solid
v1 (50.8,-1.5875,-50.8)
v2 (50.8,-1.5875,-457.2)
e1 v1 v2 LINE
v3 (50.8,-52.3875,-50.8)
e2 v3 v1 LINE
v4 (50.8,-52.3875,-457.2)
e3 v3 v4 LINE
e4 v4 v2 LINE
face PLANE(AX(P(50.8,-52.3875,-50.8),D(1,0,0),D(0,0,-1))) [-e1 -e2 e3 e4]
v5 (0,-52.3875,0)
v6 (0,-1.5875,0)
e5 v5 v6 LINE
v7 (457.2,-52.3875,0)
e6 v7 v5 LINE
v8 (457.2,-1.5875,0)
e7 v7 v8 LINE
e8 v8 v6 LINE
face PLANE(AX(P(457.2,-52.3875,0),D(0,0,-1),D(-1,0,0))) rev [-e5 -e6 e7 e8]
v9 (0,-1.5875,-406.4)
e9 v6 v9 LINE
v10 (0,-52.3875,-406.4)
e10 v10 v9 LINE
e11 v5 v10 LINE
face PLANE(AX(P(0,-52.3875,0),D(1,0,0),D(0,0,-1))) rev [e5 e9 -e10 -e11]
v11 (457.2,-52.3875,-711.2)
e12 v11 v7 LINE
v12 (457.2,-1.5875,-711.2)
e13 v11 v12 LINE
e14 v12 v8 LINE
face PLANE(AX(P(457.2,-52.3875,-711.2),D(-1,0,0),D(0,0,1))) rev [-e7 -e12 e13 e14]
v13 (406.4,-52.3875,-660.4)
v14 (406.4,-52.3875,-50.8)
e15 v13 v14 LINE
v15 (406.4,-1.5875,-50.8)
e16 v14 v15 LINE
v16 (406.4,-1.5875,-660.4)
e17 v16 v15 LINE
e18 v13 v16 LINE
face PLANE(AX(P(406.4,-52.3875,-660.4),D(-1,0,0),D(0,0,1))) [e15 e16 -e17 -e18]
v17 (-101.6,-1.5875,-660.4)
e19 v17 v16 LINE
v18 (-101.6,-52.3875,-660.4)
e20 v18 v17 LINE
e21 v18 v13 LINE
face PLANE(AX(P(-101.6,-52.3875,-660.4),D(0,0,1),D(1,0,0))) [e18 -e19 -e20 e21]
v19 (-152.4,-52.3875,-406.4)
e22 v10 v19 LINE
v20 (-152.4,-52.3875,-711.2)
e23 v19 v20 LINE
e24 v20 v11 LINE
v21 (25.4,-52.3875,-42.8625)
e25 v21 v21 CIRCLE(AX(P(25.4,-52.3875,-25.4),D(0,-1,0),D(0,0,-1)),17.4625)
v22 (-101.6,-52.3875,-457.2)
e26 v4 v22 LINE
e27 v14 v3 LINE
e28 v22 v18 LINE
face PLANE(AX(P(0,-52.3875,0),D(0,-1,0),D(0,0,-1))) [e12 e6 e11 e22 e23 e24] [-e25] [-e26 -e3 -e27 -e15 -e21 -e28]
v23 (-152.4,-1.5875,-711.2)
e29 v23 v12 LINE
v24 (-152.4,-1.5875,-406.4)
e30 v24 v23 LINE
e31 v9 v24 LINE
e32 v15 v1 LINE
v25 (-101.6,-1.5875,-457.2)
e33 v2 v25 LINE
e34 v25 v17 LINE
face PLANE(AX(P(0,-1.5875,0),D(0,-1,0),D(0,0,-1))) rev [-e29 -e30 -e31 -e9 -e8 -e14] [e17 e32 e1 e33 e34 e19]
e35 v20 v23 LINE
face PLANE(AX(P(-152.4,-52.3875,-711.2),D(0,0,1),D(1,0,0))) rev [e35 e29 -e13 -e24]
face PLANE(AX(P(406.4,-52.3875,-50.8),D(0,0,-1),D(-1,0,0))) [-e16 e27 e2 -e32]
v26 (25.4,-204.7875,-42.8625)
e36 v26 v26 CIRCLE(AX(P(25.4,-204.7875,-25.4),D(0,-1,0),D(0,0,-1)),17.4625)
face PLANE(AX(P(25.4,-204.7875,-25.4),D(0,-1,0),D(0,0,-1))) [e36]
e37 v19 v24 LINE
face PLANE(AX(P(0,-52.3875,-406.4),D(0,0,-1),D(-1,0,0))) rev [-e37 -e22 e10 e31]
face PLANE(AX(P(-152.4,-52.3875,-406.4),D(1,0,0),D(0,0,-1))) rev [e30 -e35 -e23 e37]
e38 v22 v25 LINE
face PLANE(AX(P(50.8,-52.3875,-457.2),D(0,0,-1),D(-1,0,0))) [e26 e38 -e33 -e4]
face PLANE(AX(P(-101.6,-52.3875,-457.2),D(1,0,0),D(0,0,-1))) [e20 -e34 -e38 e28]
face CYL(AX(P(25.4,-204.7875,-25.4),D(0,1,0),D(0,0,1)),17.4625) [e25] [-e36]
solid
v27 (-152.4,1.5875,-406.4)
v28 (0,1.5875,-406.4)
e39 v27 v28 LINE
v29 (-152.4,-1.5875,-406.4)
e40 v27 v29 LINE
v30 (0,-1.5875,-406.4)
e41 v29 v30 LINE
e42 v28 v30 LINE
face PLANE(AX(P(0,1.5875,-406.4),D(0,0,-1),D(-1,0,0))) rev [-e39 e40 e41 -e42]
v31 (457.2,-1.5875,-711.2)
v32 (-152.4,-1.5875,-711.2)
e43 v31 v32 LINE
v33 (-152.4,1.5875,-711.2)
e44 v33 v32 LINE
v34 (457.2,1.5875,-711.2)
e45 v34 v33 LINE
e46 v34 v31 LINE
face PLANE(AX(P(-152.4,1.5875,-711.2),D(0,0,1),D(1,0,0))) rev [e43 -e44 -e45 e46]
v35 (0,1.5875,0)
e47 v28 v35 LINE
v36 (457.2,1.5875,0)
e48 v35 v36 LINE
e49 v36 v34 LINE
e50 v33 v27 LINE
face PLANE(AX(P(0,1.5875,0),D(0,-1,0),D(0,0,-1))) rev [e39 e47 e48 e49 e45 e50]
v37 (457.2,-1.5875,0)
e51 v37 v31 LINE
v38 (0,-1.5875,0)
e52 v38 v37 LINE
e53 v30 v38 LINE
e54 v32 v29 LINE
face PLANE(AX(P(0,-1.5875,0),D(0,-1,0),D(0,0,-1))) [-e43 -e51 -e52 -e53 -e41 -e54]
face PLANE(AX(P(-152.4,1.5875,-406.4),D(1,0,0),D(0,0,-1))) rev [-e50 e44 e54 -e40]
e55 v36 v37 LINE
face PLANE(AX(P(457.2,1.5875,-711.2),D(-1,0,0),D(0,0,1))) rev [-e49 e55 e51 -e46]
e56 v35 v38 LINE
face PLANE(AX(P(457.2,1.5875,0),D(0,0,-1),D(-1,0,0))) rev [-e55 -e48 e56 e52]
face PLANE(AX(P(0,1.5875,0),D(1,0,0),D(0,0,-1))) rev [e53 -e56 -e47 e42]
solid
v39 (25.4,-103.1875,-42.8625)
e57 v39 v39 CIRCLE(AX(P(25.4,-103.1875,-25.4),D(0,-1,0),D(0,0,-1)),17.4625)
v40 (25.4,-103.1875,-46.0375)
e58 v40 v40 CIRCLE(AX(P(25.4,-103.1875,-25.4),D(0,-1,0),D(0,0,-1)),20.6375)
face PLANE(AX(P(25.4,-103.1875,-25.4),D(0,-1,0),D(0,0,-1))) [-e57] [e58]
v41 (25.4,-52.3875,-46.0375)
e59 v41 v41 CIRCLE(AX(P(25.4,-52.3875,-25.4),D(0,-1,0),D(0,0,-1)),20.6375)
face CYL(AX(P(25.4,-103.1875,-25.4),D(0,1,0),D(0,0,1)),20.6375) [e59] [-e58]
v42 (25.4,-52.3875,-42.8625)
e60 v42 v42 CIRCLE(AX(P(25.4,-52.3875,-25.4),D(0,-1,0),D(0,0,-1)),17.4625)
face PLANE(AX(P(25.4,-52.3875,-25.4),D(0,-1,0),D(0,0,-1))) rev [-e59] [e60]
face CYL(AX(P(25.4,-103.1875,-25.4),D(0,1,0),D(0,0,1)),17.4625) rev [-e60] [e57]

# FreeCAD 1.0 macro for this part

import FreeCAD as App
import Part
import Sketcher
Q = App.Units.Quantity

doc = App.newDocument("Part")
params = doc.addObject("Spreadsheet::Sheet", "Params")
for row, (alias, value) in enumerate([
    ("sketch1_width", "18 in"),
    ("sketch1_width2", "24 in"),
    ("sketch1_height", "16 in"),
    ("sketch1_height2", "28 in"),
    ("pad1_length", "0.125 in"),
    ("sketch2_width", "18 in"),
    ("sketch2_width2", "6 in"),
    ("sketch2_width3", "14 in"),
    ("sketch2_height", "16 in"),
    ("sketch2_height2", "12 in"),
    ("pad2_length", "2 in"),
    ("sketch3_diameter", "1.375 in"),
    ("pad3_length", "6 in"),
    ("sketch4_diameter", "1.625 in"),
    ("sketch4_diameter2", "1.375 in"),
    ("pad4_length", "2 in"),
], start=1):
    params.set(f"A{row}", alias)
    params.set(f"B{row}", "=" + value)
    params.setAlias(f"B{row}", alias)

body = doc.addObject("PartDesign::Body", "Body")

sketch1 = body.newObject("Sketcher::SketchObject", "Sketch")
sketch1.AttachmentSupport = (doc.getObject("XZ_Plane"), [""])
sketch1.MapMode = "FlatFace"
sketch1.addGeometry([
    Part.LineSegment(App.Vector(0, -406, 0), App.Vector(0, 0, 0)),
    Part.LineSegment(App.Vector(0, 0, 0), App.Vector(457, 0, 0)),
    Part.LineSegment(App.Vector(457, 0, 0), App.Vector(457, -711, 0)),
    Part.LineSegment(App.Vector(457, -711, 0), App.Vector(-152, -711, 0)),
    Part.LineSegment(App.Vector(-152, -711, 0), App.Vector(-152, -406, 0)),
    Part.LineSegment(App.Vector(-152, -406, 0), App.Vector(0, -406, 0)),
], False)
sketch1.addConstraint([
    Sketcher.Constraint("Coincident", 0, 2, 1, 1),
    Sketcher.Constraint("Coincident", 1, 2, 2, 1),
    Sketcher.Constraint("Coincident", 2, 2, 3, 1),
    Sketcher.Constraint("Coincident", 3, 2, 4, 1),
    Sketcher.Constraint("Coincident", 4, 2, 5, 1),
    Sketcher.Constraint("Coincident", 5, 2, 0, 1),
    Sketcher.Constraint("Vertical", 0),
    Sketcher.Constraint("Horizontal", 1),
    Sketcher.Constraint("Vertical", 2),
    Sketcher.Constraint("Horizontal", 3),
    Sketcher.Constraint("Vertical", 4),
    Sketcher.Constraint("Horizontal", 5),
    Sketcher.Constraint("Coincident", 0, 2, -1, 1),
    Sketcher.Constraint("DistanceX", 1, 1, 1, 2, Q("18 in")),
    Sketcher.Constraint("DistanceX", 3, 2, 3, 1, Q("24 in")),
    Sketcher.Constraint("DistanceY", 0, 1, 0, 2, Q("16 in")),
    Sketcher.Constraint("DistanceY", 2, 2, 2, 1, Q("28 in")),
])
sketch1.setExpression("Constraints[13]", "Params.sketch1_width")
sketch1.setExpression("Constraints[14]", "Params.sketch1_width2")
sketch1.setExpression("Constraints[15]", "Params.sketch1_height")
sketch1.setExpression("Constraints[16]", "Params.sketch1_height2")
pad1 = body.newObject("PartDesign::Pad", "Pad")
pad1.Profile = sketch1
pad1.setExpression("Length", "Params.pad1_length")
pad1.Midplane = True
body2 = doc.addObject("PartDesign::Body", "Body001")

sketch2 = body2.newObject("Sketcher::SketchObject", "Sketch001")
sketch2.AttachmentSupport = (doc.getObject("XZ_Plane001"), [""])
sketch2.MapMode = "FlatFace"
sketch2.AttachmentOffset = App.Placement(App.Vector(0, 0, 0.0625 * 25.4), App.Rotation())
sketch2.addGeometry([
    Part.LineSegment(App.Vector(457, 0, 0), App.Vector(0, 0, 0)),
    Part.LineSegment(App.Vector(0, 0, 0), App.Vector(0, -406, 0)),
    Part.LineSegment(App.Vector(0, -406, 0), App.Vector(-152, -406, 0)),
    Part.LineSegment(App.Vector(-152, -406, 0), App.Vector(-152, -711, 0)),
    Part.LineSegment(App.Vector(-152, -711, 0), App.Vector(457, -711, 0)),
    Part.LineSegment(App.Vector(457, -711, 0), App.Vector(457, 0, 0)),
    Part.LineSegment(App.Vector(51, -51, 0), App.Vector(406, -51, 0)),
    Part.LineSegment(App.Vector(406, -51, 0), App.Vector(406, -660, 0)),
    Part.LineSegment(App.Vector(406, -660, 0), App.Vector(-102, -660, 0)),
    Part.LineSegment(App.Vector(-102, -660, 0), App.Vector(-102, -457, 0)),
    Part.LineSegment(App.Vector(-102, -457, 0), App.Vector(51, -457, 0)),
    Part.LineSegment(App.Vector(51, -457, 0), App.Vector(51, -51, 0)),
], False)
sketch2.addConstraint([
    Sketcher.Constraint("Coincident", 0, 2, 1, 1),
    Sketcher.Constraint("Coincident", 1, 2, 2, 1),
    Sketcher.Constraint("Coincident", 2, 2, 3, 1),
    Sketcher.Constraint("Coincident", 3, 2, 4, 1),
    Sketcher.Constraint("Coincident", 4, 2, 5, 1),
    Sketcher.Constraint("Coincident", 5, 2, 0, 1),
    Sketcher.Constraint("Coincident", 6, 2, 7, 1),
    Sketcher.Constraint("Coincident", 7, 2, 8, 1),
    Sketcher.Constraint("Coincident", 8, 2, 9, 1),
    Sketcher.Constraint("Coincident", 9, 2, 10, 1),
    Sketcher.Constraint("Coincident", 10, 2, 11, 1),
    Sketcher.Constraint("Coincident", 11, 2, 6, 1),
    Sketcher.Constraint("Horizontal", 0),
    Sketcher.Constraint("Vertical", 1),
    Sketcher.Constraint("Horizontal", 2),
    Sketcher.Constraint("Vertical", 3),
    Sketcher.Constraint("Horizontal", 4),
    Sketcher.Constraint("Vertical", 5),
    Sketcher.Constraint("Horizontal", 6),
    Sketcher.Constraint("Vertical", 7),
    Sketcher.Constraint("Horizontal", 8),
    Sketcher.Constraint("Vertical", 9),
    Sketcher.Constraint("Horizontal", 10),
    Sketcher.Constraint("Vertical", 11),
    Sketcher.Constraint("Coincident", 0, 2, -1, 1),
    Sketcher.Constraint("Equal", 2, 10),
    Sketcher.Constraint("Equal", 4, 7),
    Sketcher.Constraint("Equal", 1, 11),
    Sketcher.Constraint("DistanceX", 0, 2, 0, 1, Q("18 in")),
    Sketcher.Constraint("DistanceX", 2, 2, 2, 1, Q("6 in")),
    Sketcher.Constraint("DistanceX", 6, 1, 6, 2, Q("14 in")),
    Sketcher.Constraint("DistanceY", 1, 2, 1, 1, Q("16 in")),
    Sketcher.Constraint("DistanceY", 3, 2, 3, 1, Q("12 in")),
    Sketcher.Constraint("DistanceX", -1, 1, 6, 2, Q("16 in")),
    Sketcher.Constraint("DistanceY", 6, 2, -1, 1, Q("2 in")),
])
sketch2.setExpression("Constraints[28]", "Params.sketch2_width")
sketch2.setExpression("Constraints[29]", "Params.sketch2_width2")
sketch2.setExpression("Constraints[30]", "Params.sketch2_width3")
sketch2.setExpression("Constraints[31]", "Params.sketch2_height")
sketch2.setExpression("Constraints[32]", "Params.sketch2_height2")
pad2 = body2.newObject("PartDesign::Pad", "Pad001")
pad2.Profile = sketch2
pad2.setExpression("Length", "Params.pad2_length")

sketch3 = body2.newObject("Sketcher::SketchObject", "Sketch002")
sketch3.AttachmentSupport = (doc.getObject("XZ_Plane001"), [""])
sketch3.MapMode = "FlatFace"
sketch3.AttachmentOffset = App.Placement(App.Vector(0, 0, 2.0625 * 25.4), App.Rotation())
sketch3.addGeometry(Part.Circle(App.Vector(25, -25, 0), App.Vector(0, 0, 1), 17), False)
sketch3.addConstraint([
    Sketcher.Constraint("Diameter", 0, Q("1.375 in")),
    Sketcher.Constraint("DistanceX", -1, 1, 0, 3, Q("1 in")),
    Sketcher.Constraint("DistanceY", 0, 3, -1, 1, Q("1 in")),
])
sketch3.setExpression("Constraints[0]", "Params.sketch3_diameter")
pad3 = body2.newObject("PartDesign::Pad", "Pad002")
pad3.Profile = sketch3
pad3.setExpression("Length", "Params.pad3_length")
body3 = doc.addObject("PartDesign::Body", "Body002")

sketch4 = body3.newObject("Sketcher::SketchObject", "Sketch003")
sketch4.AttachmentSupport = (doc.getObject("XZ_Plane002"), [""])
sketch4.MapMode = "FlatFace"
sketch4.AttachmentOffset = App.Placement(App.Vector(0, 0, 2.0625 * 25.4), App.Rotation())
sketch4.addGeometry([
    Part.Circle(App.Vector(25, -25, 0), App.Vector(0, 0, 1), 21),
    Part.Circle(App.Vector(25, -25, 0), App.Vector(0, 0, 1), 17),
], False)
sketch4.addConstraint([
    Sketcher.Constraint("Coincident", 1, 3, 0, 3),
    Sketcher.Constraint("Diameter", 0, Q("1.625 in")),
    Sketcher.Constraint("Diameter", 1, Q("1.375 in")),
    Sketcher.Constraint("DistanceX", -1, 1, 0, 3, Q("1 in")),
    Sketcher.Constraint("DistanceY", 0, 3, -1, 1, Q("1 in")),
])
sketch4.setExpression("Constraints[1]", "Params.sketch4_diameter")
sketch4.setExpression("Constraints[2]", "Params.sketch4_diameter2")
pad4 = body3.newObject("PartDesign::Pad", "Pad003")
pad4.Profile = sketch4
pad4.setExpression("Length", "Params.pad4_length")

doc.recompute()
